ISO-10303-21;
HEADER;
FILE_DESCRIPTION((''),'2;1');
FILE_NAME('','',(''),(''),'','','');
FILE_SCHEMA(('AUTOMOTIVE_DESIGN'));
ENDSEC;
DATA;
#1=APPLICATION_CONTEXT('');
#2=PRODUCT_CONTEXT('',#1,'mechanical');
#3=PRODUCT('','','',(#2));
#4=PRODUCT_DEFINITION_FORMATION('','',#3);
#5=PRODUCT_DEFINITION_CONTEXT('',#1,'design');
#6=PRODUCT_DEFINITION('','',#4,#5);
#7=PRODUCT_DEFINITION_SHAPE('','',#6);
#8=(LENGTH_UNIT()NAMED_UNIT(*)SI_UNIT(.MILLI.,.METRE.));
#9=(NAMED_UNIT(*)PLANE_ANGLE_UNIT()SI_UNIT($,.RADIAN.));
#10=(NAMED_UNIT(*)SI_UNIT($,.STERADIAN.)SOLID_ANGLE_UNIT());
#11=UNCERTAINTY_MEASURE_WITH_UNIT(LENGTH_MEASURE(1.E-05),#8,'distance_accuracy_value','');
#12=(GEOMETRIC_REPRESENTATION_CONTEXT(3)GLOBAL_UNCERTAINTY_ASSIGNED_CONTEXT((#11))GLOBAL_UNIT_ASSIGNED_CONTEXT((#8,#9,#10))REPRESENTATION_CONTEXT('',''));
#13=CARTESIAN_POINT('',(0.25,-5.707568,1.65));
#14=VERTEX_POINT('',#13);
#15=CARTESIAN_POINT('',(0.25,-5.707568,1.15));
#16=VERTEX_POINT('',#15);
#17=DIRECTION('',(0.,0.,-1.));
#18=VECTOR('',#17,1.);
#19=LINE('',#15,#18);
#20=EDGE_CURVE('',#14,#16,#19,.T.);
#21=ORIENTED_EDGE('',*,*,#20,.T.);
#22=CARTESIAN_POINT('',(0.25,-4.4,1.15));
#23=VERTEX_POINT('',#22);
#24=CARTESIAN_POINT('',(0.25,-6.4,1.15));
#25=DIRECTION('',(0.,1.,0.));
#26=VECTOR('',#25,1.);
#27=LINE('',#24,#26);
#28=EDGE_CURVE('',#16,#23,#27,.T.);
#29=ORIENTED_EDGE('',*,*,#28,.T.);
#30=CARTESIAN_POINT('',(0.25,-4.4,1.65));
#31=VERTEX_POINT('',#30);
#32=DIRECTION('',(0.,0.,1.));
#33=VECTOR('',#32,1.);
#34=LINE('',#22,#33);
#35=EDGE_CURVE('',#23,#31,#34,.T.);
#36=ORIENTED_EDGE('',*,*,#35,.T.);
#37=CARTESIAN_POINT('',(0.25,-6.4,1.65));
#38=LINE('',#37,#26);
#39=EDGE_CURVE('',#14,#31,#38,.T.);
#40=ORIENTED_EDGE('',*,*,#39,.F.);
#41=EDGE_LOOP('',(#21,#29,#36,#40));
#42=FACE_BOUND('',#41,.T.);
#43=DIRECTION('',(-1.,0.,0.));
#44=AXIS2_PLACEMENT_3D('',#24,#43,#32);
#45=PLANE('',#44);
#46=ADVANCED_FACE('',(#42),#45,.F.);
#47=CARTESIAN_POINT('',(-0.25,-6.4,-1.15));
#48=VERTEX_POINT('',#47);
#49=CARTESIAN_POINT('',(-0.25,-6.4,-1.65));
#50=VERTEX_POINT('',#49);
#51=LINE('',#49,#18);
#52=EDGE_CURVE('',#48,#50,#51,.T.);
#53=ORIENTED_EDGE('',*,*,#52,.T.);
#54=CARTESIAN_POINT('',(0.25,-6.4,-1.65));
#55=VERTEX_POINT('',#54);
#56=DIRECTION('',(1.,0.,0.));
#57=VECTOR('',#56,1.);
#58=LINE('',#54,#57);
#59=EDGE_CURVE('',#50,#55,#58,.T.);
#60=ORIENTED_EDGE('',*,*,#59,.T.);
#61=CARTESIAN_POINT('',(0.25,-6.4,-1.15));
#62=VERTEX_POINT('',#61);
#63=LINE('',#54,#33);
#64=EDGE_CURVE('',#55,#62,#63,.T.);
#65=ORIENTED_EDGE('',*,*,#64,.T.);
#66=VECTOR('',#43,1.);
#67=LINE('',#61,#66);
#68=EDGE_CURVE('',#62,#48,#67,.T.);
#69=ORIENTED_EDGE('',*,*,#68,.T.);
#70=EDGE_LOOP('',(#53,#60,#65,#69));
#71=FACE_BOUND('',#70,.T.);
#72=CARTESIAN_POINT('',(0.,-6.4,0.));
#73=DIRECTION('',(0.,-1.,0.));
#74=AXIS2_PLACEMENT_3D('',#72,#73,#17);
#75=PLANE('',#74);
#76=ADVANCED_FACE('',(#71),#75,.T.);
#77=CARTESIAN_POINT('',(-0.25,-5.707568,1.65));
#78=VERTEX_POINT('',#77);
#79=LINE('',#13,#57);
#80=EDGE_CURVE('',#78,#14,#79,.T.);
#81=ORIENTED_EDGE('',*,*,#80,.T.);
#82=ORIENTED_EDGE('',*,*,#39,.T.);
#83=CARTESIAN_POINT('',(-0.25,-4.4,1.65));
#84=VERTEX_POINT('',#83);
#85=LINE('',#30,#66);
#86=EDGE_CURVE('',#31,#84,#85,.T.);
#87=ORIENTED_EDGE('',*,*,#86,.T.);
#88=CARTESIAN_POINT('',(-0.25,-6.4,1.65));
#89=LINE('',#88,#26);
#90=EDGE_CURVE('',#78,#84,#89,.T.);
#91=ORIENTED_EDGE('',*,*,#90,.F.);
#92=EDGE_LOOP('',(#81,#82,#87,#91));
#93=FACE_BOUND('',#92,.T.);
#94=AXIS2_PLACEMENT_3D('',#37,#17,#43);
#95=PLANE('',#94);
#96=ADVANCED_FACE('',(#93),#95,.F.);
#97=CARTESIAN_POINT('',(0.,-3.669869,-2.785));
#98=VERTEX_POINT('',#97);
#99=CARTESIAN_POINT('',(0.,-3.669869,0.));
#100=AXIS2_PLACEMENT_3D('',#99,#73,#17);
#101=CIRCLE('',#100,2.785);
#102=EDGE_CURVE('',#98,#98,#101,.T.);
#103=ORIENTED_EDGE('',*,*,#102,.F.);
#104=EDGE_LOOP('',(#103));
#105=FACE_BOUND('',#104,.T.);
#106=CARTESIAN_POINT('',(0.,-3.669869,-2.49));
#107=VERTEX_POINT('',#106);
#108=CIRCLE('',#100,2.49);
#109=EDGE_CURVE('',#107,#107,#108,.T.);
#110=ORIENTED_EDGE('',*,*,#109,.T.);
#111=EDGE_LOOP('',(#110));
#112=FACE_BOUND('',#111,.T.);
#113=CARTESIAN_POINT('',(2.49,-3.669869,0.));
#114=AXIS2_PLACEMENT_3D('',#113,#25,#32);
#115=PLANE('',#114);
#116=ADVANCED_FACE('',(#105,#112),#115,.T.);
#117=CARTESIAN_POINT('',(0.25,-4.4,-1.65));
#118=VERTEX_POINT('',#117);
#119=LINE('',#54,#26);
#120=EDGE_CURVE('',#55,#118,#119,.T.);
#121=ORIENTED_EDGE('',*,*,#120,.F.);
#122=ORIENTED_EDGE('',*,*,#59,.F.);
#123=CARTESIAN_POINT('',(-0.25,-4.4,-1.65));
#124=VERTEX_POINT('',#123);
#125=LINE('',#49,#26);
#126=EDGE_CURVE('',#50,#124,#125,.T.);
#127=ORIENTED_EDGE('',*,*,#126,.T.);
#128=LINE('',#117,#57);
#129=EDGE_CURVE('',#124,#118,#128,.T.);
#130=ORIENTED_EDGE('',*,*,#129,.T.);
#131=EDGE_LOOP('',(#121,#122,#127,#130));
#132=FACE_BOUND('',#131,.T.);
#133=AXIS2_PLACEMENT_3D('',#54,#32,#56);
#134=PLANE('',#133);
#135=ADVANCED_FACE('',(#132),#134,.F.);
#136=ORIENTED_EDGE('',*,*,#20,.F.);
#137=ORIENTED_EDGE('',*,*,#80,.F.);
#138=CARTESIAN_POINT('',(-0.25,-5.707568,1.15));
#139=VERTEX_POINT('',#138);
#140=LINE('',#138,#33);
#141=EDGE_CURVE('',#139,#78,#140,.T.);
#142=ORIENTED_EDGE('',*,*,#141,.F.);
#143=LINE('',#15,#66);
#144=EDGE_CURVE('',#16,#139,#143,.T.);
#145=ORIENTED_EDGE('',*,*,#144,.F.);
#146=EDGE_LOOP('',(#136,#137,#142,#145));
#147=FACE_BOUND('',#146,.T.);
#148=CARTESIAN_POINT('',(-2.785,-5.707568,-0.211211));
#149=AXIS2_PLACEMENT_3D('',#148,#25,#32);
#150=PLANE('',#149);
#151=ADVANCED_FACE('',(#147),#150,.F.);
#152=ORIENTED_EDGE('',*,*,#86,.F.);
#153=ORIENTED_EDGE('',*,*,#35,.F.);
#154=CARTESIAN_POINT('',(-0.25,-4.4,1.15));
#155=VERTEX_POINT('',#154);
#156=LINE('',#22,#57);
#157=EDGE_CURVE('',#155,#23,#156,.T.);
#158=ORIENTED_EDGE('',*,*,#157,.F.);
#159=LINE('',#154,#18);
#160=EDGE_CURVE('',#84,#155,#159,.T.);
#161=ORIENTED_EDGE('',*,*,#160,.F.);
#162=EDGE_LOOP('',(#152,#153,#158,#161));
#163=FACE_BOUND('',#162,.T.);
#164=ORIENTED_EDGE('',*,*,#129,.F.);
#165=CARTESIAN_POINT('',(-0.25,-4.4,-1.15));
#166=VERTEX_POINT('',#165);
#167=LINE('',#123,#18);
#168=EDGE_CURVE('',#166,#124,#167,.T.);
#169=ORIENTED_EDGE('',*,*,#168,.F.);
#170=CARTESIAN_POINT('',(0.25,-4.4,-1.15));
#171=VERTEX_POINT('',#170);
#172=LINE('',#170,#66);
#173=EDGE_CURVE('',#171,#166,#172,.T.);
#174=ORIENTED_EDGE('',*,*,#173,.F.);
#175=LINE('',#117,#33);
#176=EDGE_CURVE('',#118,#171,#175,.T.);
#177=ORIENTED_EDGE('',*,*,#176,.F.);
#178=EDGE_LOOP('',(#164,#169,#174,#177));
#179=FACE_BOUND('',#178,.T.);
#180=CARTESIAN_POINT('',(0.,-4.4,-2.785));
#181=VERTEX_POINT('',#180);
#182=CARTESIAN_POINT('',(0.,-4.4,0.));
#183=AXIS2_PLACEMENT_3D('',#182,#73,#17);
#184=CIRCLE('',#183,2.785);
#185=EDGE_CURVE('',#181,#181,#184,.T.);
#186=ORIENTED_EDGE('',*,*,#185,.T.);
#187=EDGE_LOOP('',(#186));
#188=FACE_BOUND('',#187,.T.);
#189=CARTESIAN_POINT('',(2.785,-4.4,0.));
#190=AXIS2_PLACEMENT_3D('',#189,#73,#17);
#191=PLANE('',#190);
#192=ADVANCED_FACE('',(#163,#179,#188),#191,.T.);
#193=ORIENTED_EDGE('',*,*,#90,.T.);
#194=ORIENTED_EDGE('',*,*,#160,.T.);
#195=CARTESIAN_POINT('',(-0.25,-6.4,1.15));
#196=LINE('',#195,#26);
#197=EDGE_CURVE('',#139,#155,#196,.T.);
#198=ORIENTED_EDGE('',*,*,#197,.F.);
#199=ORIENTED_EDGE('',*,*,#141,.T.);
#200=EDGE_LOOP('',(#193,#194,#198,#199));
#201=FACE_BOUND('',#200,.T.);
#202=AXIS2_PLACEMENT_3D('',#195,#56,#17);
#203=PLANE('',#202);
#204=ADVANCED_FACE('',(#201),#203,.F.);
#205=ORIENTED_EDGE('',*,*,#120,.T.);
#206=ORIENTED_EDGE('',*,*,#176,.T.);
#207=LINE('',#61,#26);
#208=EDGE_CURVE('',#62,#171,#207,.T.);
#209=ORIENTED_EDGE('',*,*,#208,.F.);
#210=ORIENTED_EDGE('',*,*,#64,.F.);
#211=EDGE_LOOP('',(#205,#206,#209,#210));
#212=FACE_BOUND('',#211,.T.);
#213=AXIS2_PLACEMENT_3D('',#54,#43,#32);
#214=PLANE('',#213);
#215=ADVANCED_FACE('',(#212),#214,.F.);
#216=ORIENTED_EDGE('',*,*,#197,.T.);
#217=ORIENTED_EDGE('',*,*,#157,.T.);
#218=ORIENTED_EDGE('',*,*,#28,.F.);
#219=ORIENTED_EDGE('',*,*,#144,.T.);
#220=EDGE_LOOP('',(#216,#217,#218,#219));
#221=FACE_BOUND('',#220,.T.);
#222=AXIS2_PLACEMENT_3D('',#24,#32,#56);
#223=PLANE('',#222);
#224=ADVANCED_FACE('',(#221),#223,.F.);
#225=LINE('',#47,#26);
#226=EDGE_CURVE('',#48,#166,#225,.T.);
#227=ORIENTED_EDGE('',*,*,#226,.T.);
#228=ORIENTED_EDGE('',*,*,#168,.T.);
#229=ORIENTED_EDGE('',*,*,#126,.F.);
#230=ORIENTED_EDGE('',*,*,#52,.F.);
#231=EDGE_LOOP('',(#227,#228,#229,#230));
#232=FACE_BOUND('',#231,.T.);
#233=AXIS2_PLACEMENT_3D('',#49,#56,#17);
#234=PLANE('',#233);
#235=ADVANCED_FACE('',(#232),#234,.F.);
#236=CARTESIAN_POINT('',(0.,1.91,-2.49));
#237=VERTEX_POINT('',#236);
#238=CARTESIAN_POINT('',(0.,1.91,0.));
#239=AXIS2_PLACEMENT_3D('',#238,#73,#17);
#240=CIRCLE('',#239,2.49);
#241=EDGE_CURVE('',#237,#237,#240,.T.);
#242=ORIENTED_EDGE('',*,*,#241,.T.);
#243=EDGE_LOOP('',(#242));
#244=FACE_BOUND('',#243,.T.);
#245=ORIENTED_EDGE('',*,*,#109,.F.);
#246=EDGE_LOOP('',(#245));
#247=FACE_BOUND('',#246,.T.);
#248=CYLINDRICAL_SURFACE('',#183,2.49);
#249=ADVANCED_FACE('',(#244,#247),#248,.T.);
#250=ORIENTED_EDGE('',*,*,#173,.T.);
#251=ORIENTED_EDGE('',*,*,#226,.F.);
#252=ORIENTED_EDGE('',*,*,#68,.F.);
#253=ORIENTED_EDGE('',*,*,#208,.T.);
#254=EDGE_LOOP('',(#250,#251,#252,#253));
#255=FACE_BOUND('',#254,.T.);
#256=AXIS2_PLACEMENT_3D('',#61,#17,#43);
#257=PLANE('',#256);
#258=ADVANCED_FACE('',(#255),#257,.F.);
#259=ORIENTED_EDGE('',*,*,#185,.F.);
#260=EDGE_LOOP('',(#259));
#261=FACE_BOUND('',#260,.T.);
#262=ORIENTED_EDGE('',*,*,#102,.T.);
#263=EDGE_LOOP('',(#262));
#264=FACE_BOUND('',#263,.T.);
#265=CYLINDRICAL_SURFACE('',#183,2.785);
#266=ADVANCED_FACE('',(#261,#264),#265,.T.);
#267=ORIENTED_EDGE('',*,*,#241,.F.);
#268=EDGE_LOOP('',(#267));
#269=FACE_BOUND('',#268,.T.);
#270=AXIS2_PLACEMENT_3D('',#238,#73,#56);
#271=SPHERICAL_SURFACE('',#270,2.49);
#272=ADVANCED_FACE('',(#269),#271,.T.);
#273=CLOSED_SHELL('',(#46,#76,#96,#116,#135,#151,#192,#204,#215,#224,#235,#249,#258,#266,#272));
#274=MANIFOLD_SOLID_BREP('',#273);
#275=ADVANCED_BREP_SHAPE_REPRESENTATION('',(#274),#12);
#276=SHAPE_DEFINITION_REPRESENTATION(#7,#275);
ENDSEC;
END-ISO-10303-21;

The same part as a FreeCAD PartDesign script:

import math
import FreeCAD as App
import Part
import Sketcher

V = App.Vector
Q = App.Units.Quantity


def add_polygon(sketch, points):
    """Adds a closed chain of lines whose ends are joined by coincident constraints."""
    first, n = sketch.GeometryCount, len(points)
    for a, b in zip(points, points[1:] + points[:1]):
        sketch.addGeometry(Part.LineSegment(App.Vector(*a, 0), App.Vector(*b, 0)), False)
    for i in range(n):
        sketch.addConstraint(Sketcher.Constraint("Coincident", first + i, 2, first + (i + 1) % n, 1))

doc = App.newDocument("Part")
body = doc.addObject("PartDesign::Body", "Body")

sketch1 = doc.addObject("Sketcher::SketchObject", "Sketch")
body.addObject(sketch1)
sketch1.AttachmentSupport = (doc.XY_Plane, [""])
sketch1.MapMode = "FlatFace"
sketch1.addGeometry([
    Part.LineSegment(V(0, 4.4, 0), V(0, -4.4, 0)),
    Part.LineSegment(V(0, -4.4, 0), V(2.79, -4.4, 0)),
    Part.LineSegment(V(2.79, -4.4, 0), V(2.79, -3.67, 0)),
    Part.LineSegment(V(2.79, -3.67, 0), V(2.49, -3.67, 0)),
    Part.LineSegment(V(2.49, -3.67, 0), V(2.49, 1.91, 0)),
    Part.ArcOfCircle(Part.Circle(V(0, 1.91, 0), V(0, 0, 1), 2.49), math.radians(0), math.radians(90)),
], False)
sketch1.addConstraint([
    Sketcher.Constraint("Coincident", 0, 2, 1, 1),
    Sketcher.Constraint("Coincident", 1, 2, 2, 1),
    Sketcher.Constraint("Coincident", 2, 2, 3, 1),
    Sketcher.Constraint("Coincident", 3, 2, 4, 1),
    Sketcher.Constraint("Tangent", 4, 2, 5, 1),
    Sketcher.Constraint("Coincident", 5, 2, 0, 1),
    Sketcher.Constraint("Vertical", 0),
    Sketcher.Constraint("Horizontal", 1),
    Sketcher.Constraint("Vertical", 2),
    Sketcher.Constraint("Horizontal", 3),
    Sketcher.Constraint("Vertical", 4),
    Sketcher.Constraint("Symmetric", 0, 2, 5, 2, -1, 1),
    Sketcher.Constraint("PointOnObject", 5, 3, -2),
    Sketcher.Constraint("Radius", 5, Q("2.49 mm")),
    Sketcher.Constraint("DistanceY", 0, 2, 0, 1, Q("8.8 mm")),
    Sketcher.Constraint("DistanceX", 1, 1, 1, 2, Q("2.785 mm")),
    Sketcher.Constraint("DistanceY", 2, 1, 2, 2, Q("0.730131 mm")),
])
revolution = doc.addObject("PartDesign::Revolution", "Revolution")
body.addObject(revolution)
revolution.Profile = sketch1
revolution.ReferenceAxis = (sketch1, ["V_Axis"])
revolution.Angle = 360

sketch2 = doc.addObject("Sketcher::SketchObject", "Sketch001")
body.addObject(sketch2)
sketch2.AttachmentSupport = (doc.XZ_Plane, [""])
sketch2.MapMode = "FlatFace"
sketch2.AttachmentOffset = App.Placement(V(0, 0, 4.4), App.Rotation())
add_polygon(sketch2, [(-0.2, -1.1), (-0.2, -1.6), (0.2, -1.6), (0.2, -1.1)])
add_polygon(sketch2, [(-0.2, 1.6), (-0.2, 1.1), (0.2, 1.1), (0.2, 1.6)])
sketch2.addConstraint([
    Sketcher.Constraint("Vertical", 0),
    Sketcher.Constraint("Horizontal", 1),
    Sketcher.Constraint("Vertical", 2),
    Sketcher.Constraint("Horizontal", 3),
    Sketcher.Constraint("Vertical", 4),
    Sketcher.Constraint("Horizontal", 5),
    Sketcher.Constraint("Vertical", 6),
    Sketcher.Constraint("Horizontal", 7),
    Sketcher.Constraint("Symmetric", 2, 2, 4, 2, -1, 1),
    Sketcher.Constraint("Symmetric", 0, 2, 6, 2, -1, 1),
    Sketcher.Constraint("Vertical", 3, 2, 4, 2),
    Sketcher.Constraint("Equal", 7, 0),
    Sketcher.Constraint("DistanceX", 1, 1, 1, 2, Q("0.5 mm")),
    Sketcher.Constraint("DistanceY", 3, 2, 4, 2, Q("2.3 mm")),
])
pad1 = doc.addObject("PartDesign::Pad", "Pad")
body.addObject(pad1)
pad1.Profile = sketch2
pad1.Length = 2

sketch3 = doc.addObject("Sketcher::SketchObject", "Sketch002")
body.addObject(sketch3)
sketch3.AttachmentSupport = (doc.YZ_Plane, [""])
sketch3.MapMode = "FlatFace"
sketch3.AttachmentOffset = App.Placement(V(0, 0, 0.25), App.Rotation())
add_polygon(sketch3, [(-5.7, 2.9), (-8.3, 2.9), (-8.3, -0.2), (-5.7, -0.2)])
sketch3.addConstraint([
    Sketcher.Constraint("Horizontal", 0),
    Sketcher.Constraint("Vertical", 1),
    Sketcher.Constraint("Horizontal", 2),
    Sketcher.Constraint("Vertical", 3),
    Sketcher.Constraint("DistanceX", 0, 2, 0, 1, Q("2.555755 mm")),
    Sketcher.Constraint("DistanceY", 1, 2, 1, 1, Q("3.125047 mm")),
    Sketcher.Constraint("DistanceY", 1, 2, -1, 1, Q("0.211211 mm")),
    Sketcher.Constraint("DistanceX", 0, 2, -1, 1, Q("8.263323 mm")),
])
pocket1 = doc.addObject("PartDesign::Pocket", "Pocket")
body.addObject(pocket1)
pocket1.Profile = sketch3
pocket1.Type = "ThroughAll"
pocket1.Midplane = True

doc.recompute()
